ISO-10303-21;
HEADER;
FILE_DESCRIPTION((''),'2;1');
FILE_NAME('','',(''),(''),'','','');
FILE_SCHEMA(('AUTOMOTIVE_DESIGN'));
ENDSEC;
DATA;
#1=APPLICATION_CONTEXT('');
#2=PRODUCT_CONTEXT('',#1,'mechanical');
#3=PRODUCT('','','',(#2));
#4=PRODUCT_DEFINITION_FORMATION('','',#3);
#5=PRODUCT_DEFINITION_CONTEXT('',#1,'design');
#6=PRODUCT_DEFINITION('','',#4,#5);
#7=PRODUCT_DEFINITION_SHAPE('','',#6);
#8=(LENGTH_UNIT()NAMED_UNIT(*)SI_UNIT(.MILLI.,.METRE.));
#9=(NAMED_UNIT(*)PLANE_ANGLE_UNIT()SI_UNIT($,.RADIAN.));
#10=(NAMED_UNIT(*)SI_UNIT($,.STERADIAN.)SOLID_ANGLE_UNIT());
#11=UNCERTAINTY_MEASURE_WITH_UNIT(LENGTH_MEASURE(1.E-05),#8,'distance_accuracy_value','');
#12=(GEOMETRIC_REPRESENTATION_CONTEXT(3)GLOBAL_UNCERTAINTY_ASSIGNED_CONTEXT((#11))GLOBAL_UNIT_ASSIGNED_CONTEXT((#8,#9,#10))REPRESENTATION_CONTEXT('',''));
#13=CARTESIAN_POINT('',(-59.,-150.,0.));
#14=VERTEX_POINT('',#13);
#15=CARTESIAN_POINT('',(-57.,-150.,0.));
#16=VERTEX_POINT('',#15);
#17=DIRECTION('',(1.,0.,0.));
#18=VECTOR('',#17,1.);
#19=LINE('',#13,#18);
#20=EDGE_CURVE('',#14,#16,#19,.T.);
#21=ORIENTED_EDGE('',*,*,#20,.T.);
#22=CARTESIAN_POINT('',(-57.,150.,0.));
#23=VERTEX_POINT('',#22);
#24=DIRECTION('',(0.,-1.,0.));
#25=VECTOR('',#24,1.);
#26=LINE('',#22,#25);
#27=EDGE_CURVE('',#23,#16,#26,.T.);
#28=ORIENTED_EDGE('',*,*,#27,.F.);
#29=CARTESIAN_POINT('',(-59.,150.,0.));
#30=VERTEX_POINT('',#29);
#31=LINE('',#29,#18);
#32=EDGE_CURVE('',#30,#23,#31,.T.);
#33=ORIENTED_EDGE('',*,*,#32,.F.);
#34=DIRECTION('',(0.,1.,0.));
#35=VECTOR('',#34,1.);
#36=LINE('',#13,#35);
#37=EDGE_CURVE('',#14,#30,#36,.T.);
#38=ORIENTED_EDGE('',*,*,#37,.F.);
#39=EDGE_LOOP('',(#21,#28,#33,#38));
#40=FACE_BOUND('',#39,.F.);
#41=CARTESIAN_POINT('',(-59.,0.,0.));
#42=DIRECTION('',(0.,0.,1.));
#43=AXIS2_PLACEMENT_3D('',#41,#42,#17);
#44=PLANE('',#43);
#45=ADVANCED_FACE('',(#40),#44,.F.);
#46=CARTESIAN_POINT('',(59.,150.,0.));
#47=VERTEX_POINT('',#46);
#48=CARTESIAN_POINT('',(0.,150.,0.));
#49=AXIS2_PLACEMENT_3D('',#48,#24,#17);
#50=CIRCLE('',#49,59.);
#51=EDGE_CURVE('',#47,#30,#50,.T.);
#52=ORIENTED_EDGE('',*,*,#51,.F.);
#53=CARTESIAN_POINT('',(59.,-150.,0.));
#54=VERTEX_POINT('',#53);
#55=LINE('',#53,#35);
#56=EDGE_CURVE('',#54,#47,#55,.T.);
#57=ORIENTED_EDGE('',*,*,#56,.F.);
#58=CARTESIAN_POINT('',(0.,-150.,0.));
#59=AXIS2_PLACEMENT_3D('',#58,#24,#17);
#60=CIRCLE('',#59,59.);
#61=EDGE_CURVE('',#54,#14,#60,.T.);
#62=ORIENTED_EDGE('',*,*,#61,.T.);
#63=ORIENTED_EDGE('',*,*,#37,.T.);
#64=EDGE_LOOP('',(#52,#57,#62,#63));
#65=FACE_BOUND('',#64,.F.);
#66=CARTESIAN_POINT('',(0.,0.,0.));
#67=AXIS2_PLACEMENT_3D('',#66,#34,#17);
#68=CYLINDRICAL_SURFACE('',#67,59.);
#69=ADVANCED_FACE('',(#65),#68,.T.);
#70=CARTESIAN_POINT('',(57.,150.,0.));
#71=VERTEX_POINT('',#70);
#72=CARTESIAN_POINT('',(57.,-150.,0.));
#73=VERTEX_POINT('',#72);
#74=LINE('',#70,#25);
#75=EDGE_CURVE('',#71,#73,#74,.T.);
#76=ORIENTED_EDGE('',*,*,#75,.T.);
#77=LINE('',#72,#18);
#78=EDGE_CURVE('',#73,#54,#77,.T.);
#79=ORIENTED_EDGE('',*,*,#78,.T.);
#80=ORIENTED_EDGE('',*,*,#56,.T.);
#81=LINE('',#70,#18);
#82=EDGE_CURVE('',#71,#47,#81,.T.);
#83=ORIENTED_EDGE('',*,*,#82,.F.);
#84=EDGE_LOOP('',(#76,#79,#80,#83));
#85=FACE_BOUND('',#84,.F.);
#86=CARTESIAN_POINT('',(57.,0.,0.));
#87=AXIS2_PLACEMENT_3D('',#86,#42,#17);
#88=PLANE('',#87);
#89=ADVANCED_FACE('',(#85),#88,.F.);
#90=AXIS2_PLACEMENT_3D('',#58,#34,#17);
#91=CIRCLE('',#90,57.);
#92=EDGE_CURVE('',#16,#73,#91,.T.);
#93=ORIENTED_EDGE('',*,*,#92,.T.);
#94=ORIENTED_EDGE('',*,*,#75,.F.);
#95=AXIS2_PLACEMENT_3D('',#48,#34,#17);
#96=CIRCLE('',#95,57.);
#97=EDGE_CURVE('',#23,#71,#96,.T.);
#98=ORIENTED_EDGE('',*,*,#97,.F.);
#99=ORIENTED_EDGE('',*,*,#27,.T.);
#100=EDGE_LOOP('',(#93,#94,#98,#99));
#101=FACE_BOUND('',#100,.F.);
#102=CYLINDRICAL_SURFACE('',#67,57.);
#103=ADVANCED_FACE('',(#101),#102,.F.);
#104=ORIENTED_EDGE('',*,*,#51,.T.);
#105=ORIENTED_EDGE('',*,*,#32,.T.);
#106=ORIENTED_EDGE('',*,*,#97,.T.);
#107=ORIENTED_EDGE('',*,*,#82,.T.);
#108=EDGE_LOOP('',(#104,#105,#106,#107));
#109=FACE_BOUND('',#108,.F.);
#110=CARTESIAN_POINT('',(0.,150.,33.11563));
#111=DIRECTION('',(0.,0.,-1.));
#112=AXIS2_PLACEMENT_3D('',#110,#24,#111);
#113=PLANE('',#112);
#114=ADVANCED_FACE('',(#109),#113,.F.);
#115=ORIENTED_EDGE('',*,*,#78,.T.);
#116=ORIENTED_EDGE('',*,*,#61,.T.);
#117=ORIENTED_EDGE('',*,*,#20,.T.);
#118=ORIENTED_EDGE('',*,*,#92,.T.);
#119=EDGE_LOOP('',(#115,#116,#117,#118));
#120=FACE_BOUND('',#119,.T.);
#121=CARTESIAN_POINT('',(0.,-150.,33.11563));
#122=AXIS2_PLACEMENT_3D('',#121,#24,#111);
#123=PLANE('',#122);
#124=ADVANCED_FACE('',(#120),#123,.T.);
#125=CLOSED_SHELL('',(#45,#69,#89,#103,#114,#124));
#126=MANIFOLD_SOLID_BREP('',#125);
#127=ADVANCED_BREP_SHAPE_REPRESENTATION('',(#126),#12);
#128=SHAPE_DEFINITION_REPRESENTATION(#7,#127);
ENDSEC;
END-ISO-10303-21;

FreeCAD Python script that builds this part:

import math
import FreeCAD as App
import Part
import Sketcher
Q = App.Units.Quantity

doc = App.newDocument("Part")
body = doc.addObject("PartDesign::Body", "Body")

sketch1 = doc.addObject("Sketcher::SketchObject", "Sketch")
body.addObject(sketch1)
sketch1.AttachmentSupport = (doc.XZ_Plane, [""])
sketch1.MapMode = "FlatFace"
sketch1.addGeometry([
    Part.ArcOfCircle(Part.Circle(App.Vector(0, 0, 0), App.Vector(0, 0, 1), 59), math.radians(0), math.radians(180)),
    Part.LineSegment(App.Vector(-59, 0, 0), App.Vector(-57, 0, 0)),
    Part.ArcOfCircle(Part.Circle(App.Vector(0, 0, 0), App.Vector(0, 0, 1), 57), math.radians(0), math.radians(180)),
    Part.LineSegment(App.Vector(57, 0, 0), App.Vector(59, 0, 0)),
], False)
sketch1.addConstraint([
    Sketcher.Constraint("Coincident", 0, 2, 1, 1),
    Sketcher.Constraint("Coincident", 1, 2, 2, 2),
    Sketcher.Constraint("Coincident", 2, 1, 3, 1),
    Sketcher.Constraint("Coincident", 3, 2, 0, 1),
    Sketcher.Constraint("Horizontal", 1),
    Sketcher.Constraint("Horizontal", 3),
    Sketcher.Constraint("Coincident", 0, 3, -1, 1),
    Sketcher.Constraint("Coincident", 2, 3, -1, 1),
    Sketcher.Constraint("PointOnObject", 0, 2, -1),
    Sketcher.Constraint("PointOnObject", 2, 1, -1),
    Sketcher.Constraint("Radius", 0, Q("59 mm")),
    Sketcher.Constraint("Radius", 2, Q("57 mm")),
])
pad1 = doc.addObject("PartDesign::Pad", "Pad")
body.addObject(pad1)
pad1.Profile = sketch1
pad1.Length = 300
pad1.Midplane = True

doc.recompute()
